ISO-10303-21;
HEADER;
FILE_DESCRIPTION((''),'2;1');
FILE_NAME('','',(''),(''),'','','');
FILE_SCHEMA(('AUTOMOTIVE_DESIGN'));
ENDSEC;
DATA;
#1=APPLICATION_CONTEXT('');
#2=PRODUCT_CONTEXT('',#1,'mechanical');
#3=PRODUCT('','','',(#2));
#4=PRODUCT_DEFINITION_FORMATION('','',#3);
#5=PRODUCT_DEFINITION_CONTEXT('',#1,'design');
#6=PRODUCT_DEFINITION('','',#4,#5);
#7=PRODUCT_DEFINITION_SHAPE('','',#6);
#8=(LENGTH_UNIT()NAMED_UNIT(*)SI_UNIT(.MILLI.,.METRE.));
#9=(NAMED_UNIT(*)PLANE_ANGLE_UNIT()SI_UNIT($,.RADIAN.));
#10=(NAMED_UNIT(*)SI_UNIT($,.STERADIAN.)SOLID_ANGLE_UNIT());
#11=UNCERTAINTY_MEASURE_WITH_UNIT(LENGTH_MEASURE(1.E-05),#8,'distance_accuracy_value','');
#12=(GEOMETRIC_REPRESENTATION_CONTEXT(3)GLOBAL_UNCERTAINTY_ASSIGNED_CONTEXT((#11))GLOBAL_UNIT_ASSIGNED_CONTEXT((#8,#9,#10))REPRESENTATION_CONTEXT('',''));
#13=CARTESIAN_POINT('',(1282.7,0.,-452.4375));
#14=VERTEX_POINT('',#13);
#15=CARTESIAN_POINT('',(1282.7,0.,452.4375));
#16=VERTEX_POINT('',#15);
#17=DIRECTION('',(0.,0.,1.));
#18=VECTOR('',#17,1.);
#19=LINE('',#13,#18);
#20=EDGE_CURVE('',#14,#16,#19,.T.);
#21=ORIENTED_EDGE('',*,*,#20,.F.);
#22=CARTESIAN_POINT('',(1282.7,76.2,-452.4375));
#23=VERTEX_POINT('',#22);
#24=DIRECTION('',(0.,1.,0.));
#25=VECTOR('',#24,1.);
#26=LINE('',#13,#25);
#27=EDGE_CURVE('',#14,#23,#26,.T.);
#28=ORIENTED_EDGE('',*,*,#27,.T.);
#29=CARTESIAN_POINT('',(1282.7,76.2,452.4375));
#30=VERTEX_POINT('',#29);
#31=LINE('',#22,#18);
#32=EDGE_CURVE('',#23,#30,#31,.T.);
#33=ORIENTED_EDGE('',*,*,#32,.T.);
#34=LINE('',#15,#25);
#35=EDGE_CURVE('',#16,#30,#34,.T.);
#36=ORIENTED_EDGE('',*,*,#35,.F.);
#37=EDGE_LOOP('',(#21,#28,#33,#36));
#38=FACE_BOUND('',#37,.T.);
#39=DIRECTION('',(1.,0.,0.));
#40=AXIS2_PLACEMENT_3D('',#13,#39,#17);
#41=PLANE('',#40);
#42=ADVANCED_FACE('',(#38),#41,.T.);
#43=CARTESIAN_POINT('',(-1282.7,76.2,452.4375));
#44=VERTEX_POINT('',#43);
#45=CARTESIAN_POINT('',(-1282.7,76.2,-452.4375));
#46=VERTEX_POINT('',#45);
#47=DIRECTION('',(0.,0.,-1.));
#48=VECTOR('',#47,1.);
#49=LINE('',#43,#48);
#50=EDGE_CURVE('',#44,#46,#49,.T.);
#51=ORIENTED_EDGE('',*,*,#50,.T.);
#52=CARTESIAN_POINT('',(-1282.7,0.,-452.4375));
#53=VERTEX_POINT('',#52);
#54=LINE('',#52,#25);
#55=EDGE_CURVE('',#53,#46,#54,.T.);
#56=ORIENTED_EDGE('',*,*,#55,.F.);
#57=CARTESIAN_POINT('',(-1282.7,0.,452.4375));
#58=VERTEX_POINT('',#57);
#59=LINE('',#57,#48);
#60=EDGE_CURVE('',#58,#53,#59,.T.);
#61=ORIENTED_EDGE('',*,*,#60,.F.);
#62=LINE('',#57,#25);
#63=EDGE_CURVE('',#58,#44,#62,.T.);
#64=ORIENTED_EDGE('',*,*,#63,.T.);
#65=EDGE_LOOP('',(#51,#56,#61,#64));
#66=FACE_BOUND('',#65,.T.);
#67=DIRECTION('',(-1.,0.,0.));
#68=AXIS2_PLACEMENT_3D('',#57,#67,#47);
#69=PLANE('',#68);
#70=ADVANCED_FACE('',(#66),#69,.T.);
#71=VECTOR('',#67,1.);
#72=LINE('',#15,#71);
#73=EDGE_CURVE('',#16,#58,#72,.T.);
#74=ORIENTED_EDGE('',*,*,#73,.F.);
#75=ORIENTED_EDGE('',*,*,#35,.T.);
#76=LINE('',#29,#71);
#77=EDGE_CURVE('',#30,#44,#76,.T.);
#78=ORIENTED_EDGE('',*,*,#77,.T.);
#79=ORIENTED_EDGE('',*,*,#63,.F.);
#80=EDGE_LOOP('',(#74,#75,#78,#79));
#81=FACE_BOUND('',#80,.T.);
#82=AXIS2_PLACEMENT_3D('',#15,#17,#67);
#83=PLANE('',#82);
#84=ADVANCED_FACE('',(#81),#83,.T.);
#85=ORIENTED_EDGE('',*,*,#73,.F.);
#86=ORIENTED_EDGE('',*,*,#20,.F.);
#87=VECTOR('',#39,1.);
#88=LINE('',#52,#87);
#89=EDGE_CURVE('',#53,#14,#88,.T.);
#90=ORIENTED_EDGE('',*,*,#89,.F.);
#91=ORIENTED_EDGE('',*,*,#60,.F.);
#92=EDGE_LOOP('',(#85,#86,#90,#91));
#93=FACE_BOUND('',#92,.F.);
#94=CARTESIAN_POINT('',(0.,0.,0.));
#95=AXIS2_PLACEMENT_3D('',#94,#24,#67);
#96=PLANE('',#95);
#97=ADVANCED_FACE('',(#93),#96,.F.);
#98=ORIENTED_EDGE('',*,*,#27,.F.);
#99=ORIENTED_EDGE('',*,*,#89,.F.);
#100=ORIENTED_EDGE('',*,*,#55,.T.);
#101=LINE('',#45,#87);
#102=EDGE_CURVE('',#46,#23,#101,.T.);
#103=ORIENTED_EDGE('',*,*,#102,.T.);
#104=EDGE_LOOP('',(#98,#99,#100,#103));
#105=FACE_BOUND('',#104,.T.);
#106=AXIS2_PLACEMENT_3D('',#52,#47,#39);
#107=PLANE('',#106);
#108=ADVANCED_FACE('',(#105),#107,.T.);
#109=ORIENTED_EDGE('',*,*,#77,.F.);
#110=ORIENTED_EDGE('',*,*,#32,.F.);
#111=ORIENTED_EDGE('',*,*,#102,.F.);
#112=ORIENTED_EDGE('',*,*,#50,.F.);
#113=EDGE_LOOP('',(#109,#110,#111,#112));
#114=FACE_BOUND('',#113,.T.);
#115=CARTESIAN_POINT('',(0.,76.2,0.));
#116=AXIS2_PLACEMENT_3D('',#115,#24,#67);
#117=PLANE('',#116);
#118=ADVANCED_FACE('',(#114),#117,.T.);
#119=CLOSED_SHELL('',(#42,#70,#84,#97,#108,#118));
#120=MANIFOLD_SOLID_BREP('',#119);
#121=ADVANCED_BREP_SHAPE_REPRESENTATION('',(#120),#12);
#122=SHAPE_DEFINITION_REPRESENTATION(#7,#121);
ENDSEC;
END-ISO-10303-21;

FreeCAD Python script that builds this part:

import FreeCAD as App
import Part
import Sketcher
Q = App.Units.Quantity

doc = App.newDocument("Part")
body = doc.addObject("PartDesign::Body", "Body")

# Sketch on XZ plane
sketch1 = doc.addObject("Sketcher::SketchObject", "Sketch")
body.addObject(sketch1)
sketch1.AttachmentSupport = (doc.XZ_Plane, [""])
sketch1.MapMode = "FlatFace"
sketch1.addGeometry([
    Part.LineSegment(App.Vector(1283, -452, 0), App.Vector(-1283, -452, 0)),
    Part.LineSegment(App.Vector(-1283, -452, 0), App.Vector(-1283, 452, 0)),
    Part.LineSegment(App.Vector(-1283, 452, 0), App.Vector(1283, 452, 0)),
    Part.LineSegment(App.Vector(1283, 452, 0), App.Vector(1283, -452, 0)),
], False)
sketch1.addConstraint([
    Sketcher.Constraint("Coincident", 0, 2, 1, 1),
    Sketcher.Constraint("Coincident", 1, 2, 2, 1),
    Sketcher.Constraint("Coincident", 2, 2, 3, 1),
    Sketcher.Constraint("Coincident", 3, 2, 0, 1),
    Sketcher.Constraint("Horizontal", 0),
    Sketcher.Constraint("Vertical", 1),
    Sketcher.Constraint("Horizontal", 2),
    Sketcher.Constraint("Vertical", 3),
    Sketcher.Constraint("Symmetric", 0, 2, 2, 2, -1, 1),
    Sketcher.Constraint("DistanceX", 0, 2, 0, 1, Q("101 in")),
    Sketcher.Constraint("DistanceY", 1, 1, 1, 2, Q("35.625 in")),
])
pad1 = doc.addObject("PartDesign::Pad", "Pad")
body.addObject(pad1)
pad1.Profile = sketch1
pad1.Length = Q("3 in")
pad1.Reversed = True

doc.recompute()
